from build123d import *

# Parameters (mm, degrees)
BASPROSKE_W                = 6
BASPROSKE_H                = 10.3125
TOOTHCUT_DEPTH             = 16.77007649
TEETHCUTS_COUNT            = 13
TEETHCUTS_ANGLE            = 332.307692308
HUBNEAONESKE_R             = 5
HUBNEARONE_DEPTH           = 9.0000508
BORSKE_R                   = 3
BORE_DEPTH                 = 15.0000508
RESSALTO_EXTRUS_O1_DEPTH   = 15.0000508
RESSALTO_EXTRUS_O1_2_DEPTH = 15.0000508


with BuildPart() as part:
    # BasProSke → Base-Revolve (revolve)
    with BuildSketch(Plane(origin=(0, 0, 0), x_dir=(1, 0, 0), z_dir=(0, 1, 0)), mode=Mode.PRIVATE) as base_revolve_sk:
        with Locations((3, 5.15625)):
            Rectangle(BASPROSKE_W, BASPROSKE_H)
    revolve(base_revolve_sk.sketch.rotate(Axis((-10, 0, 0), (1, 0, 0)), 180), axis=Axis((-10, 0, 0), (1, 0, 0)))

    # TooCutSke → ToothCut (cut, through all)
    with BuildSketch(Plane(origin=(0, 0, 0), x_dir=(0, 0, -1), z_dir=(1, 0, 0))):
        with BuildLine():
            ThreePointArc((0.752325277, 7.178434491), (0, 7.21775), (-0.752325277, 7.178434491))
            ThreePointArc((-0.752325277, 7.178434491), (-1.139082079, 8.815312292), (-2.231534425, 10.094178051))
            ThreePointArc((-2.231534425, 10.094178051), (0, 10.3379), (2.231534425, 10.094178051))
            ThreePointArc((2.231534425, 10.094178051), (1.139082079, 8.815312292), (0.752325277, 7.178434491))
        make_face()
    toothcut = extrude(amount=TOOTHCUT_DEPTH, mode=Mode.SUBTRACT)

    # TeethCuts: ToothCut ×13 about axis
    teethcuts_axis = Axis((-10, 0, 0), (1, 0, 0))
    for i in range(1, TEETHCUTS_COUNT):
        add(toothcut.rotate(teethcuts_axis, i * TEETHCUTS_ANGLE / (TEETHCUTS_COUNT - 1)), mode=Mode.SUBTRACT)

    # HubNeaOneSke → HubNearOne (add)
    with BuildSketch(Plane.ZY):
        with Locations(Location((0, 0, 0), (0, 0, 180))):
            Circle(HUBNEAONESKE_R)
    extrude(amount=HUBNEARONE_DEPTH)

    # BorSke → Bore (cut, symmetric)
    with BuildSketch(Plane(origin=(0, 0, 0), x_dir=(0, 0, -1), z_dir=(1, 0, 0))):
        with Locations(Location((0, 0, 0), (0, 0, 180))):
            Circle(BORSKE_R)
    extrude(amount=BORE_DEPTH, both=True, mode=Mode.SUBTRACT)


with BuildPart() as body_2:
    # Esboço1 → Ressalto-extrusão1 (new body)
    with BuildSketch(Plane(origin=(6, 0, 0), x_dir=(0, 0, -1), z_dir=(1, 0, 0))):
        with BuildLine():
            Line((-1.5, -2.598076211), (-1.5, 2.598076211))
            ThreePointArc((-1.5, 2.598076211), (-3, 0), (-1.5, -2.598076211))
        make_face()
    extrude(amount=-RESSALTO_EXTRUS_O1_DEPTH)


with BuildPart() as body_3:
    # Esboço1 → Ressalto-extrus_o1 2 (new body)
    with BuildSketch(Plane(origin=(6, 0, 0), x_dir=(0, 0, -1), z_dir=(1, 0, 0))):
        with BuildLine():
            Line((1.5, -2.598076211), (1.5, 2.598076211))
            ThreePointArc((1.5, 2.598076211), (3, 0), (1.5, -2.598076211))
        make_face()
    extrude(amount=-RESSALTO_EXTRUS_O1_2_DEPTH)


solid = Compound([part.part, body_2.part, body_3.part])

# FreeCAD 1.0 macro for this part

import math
import FreeCAD as App
import Part
import Sketcher
Q = App.Units.Quantity

doc = App.newDocument("Part")
body = doc.addObject("PartDesign::Body", "Body")

# Sketch on XZ plane
sketch1 = body.newObject("Sketcher::SketchObject", "Sketch")
sketch1.AttachmentSupport = (doc.getObject("XZ_Plane"), [""])
sketch1.MapMode = "FlatFace"
sketch1.addGeometry(Part.LineSegment(App.Vector(0, -10, 0), App.Vector(0, 0, 0)), False)
sketch1.addGeometry(Part.LineSegment(App.Vector(0, 0, 0), App.Vector(6, 0, 0)), False)
sketch1.addGeometry(Part.LineSegment(App.Vector(6, 0, 0), App.Vector(6, -10, 0)), False)
sketch1.addGeometry(Part.LineSegment(App.Vector(6, -10, 0), App.Vector(0, -10, 0)), False)
sketch1.addConstraint(Sketcher.Constraint("Coincident", 0, 2, 1, 1))
sketch1.addConstraint(Sketcher.Constraint("Coincident", 1, 2, 2, 1))
sketch1.addConstraint(Sketcher.Constraint("Coincident", 2, 2, 3, 1))
sketch1.addConstraint(Sketcher.Constraint("Coincident", 3, 2, 0, 1))
sketch1.addConstraint(Sketcher.Constraint("Vertical", 0))
sketch1.addConstraint(Sketcher.Constraint("Horizontal", 1))
sketch1.addConstraint(Sketcher.Constraint("Vertical", 2))
sketch1.addConstraint(Sketcher.Constraint("Horizontal", 3))
sketch1.addConstraint(Sketcher.Constraint("Coincident", 0, 2, -1, 1))
sketch1.addConstraint(Sketcher.Constraint("DistanceX", 1, 1, 1, 2, Q("6 mm")))
sketch1.addConstraint(Sketcher.Constraint("DistanceY", 0, 1, 0, 2, Q("10.3125 mm")))
revolution = body.newObject("PartDesign::Revolution", "Revolution")
revolution.Profile = sketch1
revolution.ReferenceAxis = (sketch1, ["H_Axis"])
revolution.Angle = 360

# Sketch on YZ plane
sketch2 = body.newObject("Sketcher::SketchObject", "Sketch001")
sketch2.AttachmentSupport = (doc.getObject("YZ_Plane"), [""])
sketch2.MapMode = "FlatFace"
sketch2.addGeometry(Part.ArcOfCircle(Part.Circle(App.Vector(0, 0, 0), App.Vector(0, 0, 1), 7.2), math.radians(-5.98), math.radians(5.98)), False)
sketch2.addGeometry(Part.ArcOfCircle(Part.Circle(App.Vector(7.2, -4.3, 0), App.Vector(0, 0, 1), 3.6), math.radians(36), math.radians(90)), False)
sketch2.addGeometry(Part.ArcOfCircle(Part.Circle(App.Vector(0, 0, 0), App.Vector(0, 0, 1), 10.3), math.radians(-12), math.radians(12)), False)
sketch2.addGeometry(Part.ArcOfCircle(Part.Circle(App.Vector(7.2, 4.3, 0), App.Vector(0, 0, 1), 3.6), math.radians(-90), math.radians(-36)), False)
sketch2.addConstraint(Sketcher.Constraint("Coincident", 0, 1, 1, 2))
sketch2.addConstraint(Sketcher.Constraint("Coincident", 1, 1, 2, 1))
sketch2.addConstraint(Sketcher.Constraint("Coincident", 2, 2, 3, 2))
sketch2.addConstraint(Sketcher.Constraint("Coincident", 3, 1, 0, 2))
sketch2.addConstraint(Sketcher.Constraint("Coincident", 0, 3, -1, 1))
sketch2.addConstraint(Sketcher.Constraint("Coincident", 2, 3, -1, 1))
sketch2.addConstraint(Sketcher.Constraint("Equal", 1, 3))
sketch2.addConstraint(Sketcher.Constraint("Symmetric", 1, 3, 3, 3, -1))
sketch2.addConstraint(Sketcher.Constraint("Radius", 1, Q("3.575 mm")))
sketch2.addConstraint(Sketcher.Constraint("Radius", 2, Q("10.3379 mm")))
sketch2.addConstraint(Sketcher.Constraint("Radius", 0, Q("7.21775 mm")))
sketch2.addConstraint(Sketcher.Constraint("DistanceX", -1, 1, 1, 1, Q("10.094178 mm")))
sketch2.addConstraint(Sketcher.Constraint("DistanceX", 0, 1, 1, 3, Q("0.019452 mm")))
pocket1 = body.newObject("PartDesign::Pocket", "Pocket")
pocket1.Profile = sketch2
pocket1.Type = "ThroughAll"
pocket1.Reversed = True
doc.recompute()

polarpattern = body.newObject("PartDesign::PolarPattern", "PolarPattern")
polarpattern.Originals = [pocket1]
polarpattern.Axis = (doc.getObject("X_Axis"), [""])
polarpattern.Angle = 360
polarpattern.Occurrences = 13
body.Tip = polarpattern

# Sketch on YZ plane
sketch3 = body.newObject("Sketcher::SketchObject", "Sketch002")
sketch3.AttachmentSupport = (doc.getObject("YZ_Plane"), [""])
sketch3.MapMode = "FlatFace"
sketch3.addGeometry(Part.Circle(App.Vector(0, 0, 0), App.Vector(0, 0, 1), 5), False)
sketch3.addConstraint(Sketcher.Constraint("Coincident", 0, 3, -1, 1))
sketch3.addConstraint(Sketcher.Constraint("Diameter", 0, Q("10 mm")))
pad1 = body.newObject("PartDesign::Pad", "Pad")
pad1.Profile = sketch3
pad1.Length = 9.000051
pad1.Reversed = True

# Sketch on YZ plane
sketch4 = body.newObject("Sketcher::SketchObject", "Sketch003")
sketch4.AttachmentSupport = (doc.getObject("YZ_Plane"), [""])
sketch4.MapMode = "FlatFace"
sketch4.addGeometry(Part.Circle(App.Vector(0, 0, 0), App.Vector(0, 0, 1), 3), False)
sketch4.addConstraint(Sketcher.Constraint("Coincident", 0, 3, -1, 1))
sketch4.addConstraint(Sketcher.Constraint("Diameter", 0, Q("6 mm")))
pocket2 = body.newObject("PartDesign::Pocket", "Pocket001")
pocket2.Profile = sketch4
pocket2.Length = 30.000102
pocket2.Midplane = True
body2 = doc.addObject("PartDesign::Body", "Body001")

# Sketch on YZ plane
sketch5 = body2.newObject("Sketcher::SketchObject", "Sketch004")
sketch5.AttachmentSupport = (doc.getObject("YZ_Plane001"), [""])
sketch5.MapMode = "FlatFace"
sketch5.AttachmentOffset = App.Placement(App.Vector(0, 0, 6), App.Rotation())
sketch5.addGeometry(Part.LineSegment(App.Vector(-2.6, 1.5, 0), App.Vector(2.6, 1.5, 0)), False)
sketch5.addGeometry(Part.ArcOfCircle(Part.Circle(App.Vector(0, 0, 0), App.Vector(0, 0, 1), 3), math.radians(30), math.radians(150)), False)
sketch5.addConstraint(Sketcher.Constraint("Coincident", 0, 1, 1, 2))
sketch5.addConstraint(Sketcher.Constraint("Coincident", 1, 1, 0, 2))
sketch5.addConstraint(Sketcher.Constraint("Horizontal", 0))
sketch5.addConstraint(Sketcher.Constraint("Coincident", 1, 3, -1, 1))
sketch5.addConstraint(Sketcher.Constraint("Radius", 1, Q("3 mm")))
sketch5.addConstraint(Sketcher.Constraint("DistanceY", -1, 1, 0, 1, Q("1.5 mm")))
pad2 = body2.newObject("PartDesign::Pad", "Pad001")
pad2.Profile = sketch5
pad2.Length = 15.000051
pad2.Reversed = True
body3 = doc.addObject("PartDesign::Body", "Body002")

# Sketch on YZ plane
sketch6 = body3.newObject("Sketcher::SketchObject", "Sketch005")
sketch6.AttachmentSupport = (doc.getObject("YZ_Plane002"), [""])
sketch6.MapMode = "FlatFace"
sketch6.AttachmentOffset = App.Placement(App.Vector(0, 0, 6), App.Rotation())
sketch6.addGeometry(Part.LineSegment(App.Vector(2.6, -1.5, 0), App.Vector(-2.6, -1.5, 0)), False)
sketch6.addGeometry(Part.ArcOfCircle(Part.Circle(App.Vector(0, 0, 0), App.Vector(0, 0, 1), 3), math.radians(-150), math.radians(-30)), False)
sketch6.addConstraint(Sketcher.Constraint("Coincident", 0, 1, 1, 2))
sketch6.addConstraint(Sketcher.Constraint("Coincident", 1, 1, 0, 2))
sketch6.addConstraint(Sketcher.Constraint("Horizontal", 0))
sketch6.addConstraint(Sketcher.Constraint("Coincident", 1, 3, -1, 1))
sketch6.addConstraint(Sketcher.Constraint("Radius", 1, Q("3 mm")))
sketch6.addConstraint(Sketcher.Constraint("DistanceY", 0, 1, -1, 1, Q("1.5 mm")))
pad3 = body3.newObject("PartDesign::Pad", "Pad002")
pad3.Profile = sketch6
pad3.Length = 15.000051
pad3.Reversed = True

doc.recompute()
